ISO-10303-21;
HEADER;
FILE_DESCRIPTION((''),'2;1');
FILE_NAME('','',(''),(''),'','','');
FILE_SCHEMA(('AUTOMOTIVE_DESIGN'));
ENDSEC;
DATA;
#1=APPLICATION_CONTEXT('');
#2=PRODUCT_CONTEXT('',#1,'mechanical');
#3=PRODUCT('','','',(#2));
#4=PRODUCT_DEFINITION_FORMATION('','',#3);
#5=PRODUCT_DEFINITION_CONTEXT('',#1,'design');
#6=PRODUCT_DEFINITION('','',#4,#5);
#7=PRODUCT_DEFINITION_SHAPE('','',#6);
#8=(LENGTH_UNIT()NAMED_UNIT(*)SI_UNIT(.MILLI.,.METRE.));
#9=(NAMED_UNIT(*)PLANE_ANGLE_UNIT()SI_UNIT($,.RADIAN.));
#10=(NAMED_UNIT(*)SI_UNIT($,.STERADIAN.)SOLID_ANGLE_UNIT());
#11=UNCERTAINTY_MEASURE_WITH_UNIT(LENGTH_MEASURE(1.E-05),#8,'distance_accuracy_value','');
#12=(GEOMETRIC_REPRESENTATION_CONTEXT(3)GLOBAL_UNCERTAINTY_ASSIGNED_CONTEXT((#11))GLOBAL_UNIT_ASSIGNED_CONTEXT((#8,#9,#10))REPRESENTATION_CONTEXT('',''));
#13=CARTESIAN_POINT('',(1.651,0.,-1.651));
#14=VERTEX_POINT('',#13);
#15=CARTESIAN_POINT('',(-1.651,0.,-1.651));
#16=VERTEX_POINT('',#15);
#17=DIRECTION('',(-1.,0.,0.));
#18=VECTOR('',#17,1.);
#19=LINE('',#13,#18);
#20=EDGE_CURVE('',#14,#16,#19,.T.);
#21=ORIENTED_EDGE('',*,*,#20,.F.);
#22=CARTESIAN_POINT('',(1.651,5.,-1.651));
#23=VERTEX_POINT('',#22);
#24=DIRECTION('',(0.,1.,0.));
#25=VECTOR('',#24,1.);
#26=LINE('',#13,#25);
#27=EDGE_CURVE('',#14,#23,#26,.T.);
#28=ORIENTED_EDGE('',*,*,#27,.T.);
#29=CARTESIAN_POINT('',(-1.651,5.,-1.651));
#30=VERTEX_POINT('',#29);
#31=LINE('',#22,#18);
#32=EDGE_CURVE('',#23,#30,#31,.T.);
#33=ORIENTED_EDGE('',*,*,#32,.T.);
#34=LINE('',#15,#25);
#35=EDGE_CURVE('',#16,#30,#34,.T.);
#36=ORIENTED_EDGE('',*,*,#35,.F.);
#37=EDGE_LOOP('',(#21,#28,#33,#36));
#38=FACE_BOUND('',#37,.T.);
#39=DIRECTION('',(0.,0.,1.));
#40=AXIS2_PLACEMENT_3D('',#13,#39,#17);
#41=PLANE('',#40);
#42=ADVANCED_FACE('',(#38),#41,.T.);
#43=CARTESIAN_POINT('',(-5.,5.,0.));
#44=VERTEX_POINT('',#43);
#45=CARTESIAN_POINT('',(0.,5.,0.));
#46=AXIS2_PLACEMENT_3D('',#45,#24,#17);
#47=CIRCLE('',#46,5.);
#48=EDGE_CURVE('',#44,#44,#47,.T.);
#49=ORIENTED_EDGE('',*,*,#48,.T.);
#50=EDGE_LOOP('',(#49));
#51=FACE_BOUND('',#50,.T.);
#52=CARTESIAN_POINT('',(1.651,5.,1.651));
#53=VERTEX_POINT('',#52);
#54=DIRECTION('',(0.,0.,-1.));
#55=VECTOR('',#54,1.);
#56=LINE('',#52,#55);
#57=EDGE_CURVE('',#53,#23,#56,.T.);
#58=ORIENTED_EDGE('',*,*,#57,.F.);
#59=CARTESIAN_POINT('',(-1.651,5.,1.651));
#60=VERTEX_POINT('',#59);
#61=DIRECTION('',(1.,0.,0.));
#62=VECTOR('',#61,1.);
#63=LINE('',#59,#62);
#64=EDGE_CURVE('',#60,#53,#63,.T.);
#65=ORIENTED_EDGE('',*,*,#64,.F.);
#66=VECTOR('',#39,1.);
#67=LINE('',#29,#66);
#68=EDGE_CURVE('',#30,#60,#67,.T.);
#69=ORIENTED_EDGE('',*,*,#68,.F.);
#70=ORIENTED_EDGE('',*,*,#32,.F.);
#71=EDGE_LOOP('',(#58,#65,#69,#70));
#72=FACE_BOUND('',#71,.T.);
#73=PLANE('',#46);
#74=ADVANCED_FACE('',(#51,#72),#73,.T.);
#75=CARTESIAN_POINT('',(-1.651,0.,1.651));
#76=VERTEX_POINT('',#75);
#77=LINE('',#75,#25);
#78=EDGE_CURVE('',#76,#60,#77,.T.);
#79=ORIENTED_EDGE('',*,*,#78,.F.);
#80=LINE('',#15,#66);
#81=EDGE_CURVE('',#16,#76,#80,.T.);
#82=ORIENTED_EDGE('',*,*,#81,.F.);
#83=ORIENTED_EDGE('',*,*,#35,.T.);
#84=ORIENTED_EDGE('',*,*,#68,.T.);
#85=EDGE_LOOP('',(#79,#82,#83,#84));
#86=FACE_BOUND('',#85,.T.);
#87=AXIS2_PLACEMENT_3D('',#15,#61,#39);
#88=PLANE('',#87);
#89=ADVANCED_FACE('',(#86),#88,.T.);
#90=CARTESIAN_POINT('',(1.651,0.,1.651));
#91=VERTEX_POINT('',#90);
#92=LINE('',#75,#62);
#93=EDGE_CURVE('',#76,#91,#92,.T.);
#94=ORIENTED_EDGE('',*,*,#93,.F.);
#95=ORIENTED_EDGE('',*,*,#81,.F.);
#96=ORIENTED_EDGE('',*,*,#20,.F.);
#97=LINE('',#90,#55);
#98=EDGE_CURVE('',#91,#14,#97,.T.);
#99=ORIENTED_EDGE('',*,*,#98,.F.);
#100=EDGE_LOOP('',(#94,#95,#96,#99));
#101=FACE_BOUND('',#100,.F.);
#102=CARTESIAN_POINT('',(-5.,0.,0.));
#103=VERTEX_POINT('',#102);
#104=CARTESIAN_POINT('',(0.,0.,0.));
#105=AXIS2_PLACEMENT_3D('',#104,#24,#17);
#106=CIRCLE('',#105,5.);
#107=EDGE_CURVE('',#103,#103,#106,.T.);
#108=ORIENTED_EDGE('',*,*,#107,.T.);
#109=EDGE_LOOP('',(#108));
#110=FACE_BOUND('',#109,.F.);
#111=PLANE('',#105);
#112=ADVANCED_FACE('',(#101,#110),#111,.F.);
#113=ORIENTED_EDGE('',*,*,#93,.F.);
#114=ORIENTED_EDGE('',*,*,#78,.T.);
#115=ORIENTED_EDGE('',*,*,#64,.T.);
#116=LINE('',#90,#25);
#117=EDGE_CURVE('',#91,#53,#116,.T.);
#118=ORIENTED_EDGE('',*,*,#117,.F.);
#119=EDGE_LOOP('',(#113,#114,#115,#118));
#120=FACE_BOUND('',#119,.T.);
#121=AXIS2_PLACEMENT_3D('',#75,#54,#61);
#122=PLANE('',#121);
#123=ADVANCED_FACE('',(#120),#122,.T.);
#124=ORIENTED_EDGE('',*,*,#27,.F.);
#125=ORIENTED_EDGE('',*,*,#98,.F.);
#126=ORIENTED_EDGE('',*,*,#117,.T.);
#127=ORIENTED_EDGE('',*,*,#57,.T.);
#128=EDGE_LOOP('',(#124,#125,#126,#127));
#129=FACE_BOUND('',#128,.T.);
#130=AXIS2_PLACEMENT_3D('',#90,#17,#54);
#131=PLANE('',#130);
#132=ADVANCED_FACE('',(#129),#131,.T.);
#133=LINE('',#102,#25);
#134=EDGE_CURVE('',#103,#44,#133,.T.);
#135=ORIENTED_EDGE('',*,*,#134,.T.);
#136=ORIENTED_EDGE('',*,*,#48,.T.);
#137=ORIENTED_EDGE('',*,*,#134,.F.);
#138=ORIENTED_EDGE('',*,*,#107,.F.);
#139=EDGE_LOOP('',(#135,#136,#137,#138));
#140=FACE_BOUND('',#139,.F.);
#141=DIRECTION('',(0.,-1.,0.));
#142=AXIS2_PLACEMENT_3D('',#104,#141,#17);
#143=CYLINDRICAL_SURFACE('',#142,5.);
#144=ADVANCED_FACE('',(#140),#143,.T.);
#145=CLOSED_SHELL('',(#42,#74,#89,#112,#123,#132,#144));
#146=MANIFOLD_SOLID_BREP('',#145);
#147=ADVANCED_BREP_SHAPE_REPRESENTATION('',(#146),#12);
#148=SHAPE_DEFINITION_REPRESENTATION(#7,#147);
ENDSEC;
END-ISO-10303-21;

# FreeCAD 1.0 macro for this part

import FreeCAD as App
import Part
import Sketcher


def add_polygon(sketch, points):
    """Adds a closed chain of lines whose ends are joined by coincident constraints."""
    first, n = sketch.GeometryCount, len(points)
    for a, b in zip(points, points[1:] + points[:1]):
        sketch.addGeometry(Part.LineSegment(App.Vector(*a, 0), App.Vector(*b, 0)), False)
    for i in range(n):
        sketch.addConstraint(Sketcher.Constraint("Coincident", first + i, 2, first + (i + 1) % n, 1))

doc = App.newDocument("Part")
body = doc.addObject("PartDesign::Body", "Body")

# Sketch on XZ plane
sketch1 = doc.addObject("Sketcher::SketchObject", "Sketch")
body.addObject(sketch1)
sketch1.AttachmentSupport = (doc.XZ_Plane, [""])
sketch1.MapMode = "FlatFace"
sketch1.addGeometry(Part.Circle(App.Vector(0, 0, 0), App.Vector(0, 0, 1), 5), False)  # 0
add_polygon(sketch1, [(1.651, 1.651), (-1.651, 1.651), (-1.651, -1.651), (1.651, -1.651)])  # lines 1-4
sketch1.addConstraint([
    Sketcher.Constraint("Horizontal", 1),
    Sketcher.Constraint("Vertical", 2),
    Sketcher.Constraint("Horizontal", 3),
    Sketcher.Constraint("Vertical", 4),
    Sketcher.Constraint("Coincident", 0, 3, -1, 1),
    Sketcher.Constraint("Symmetric", 1, 2, 3, 2, -1, 1),
    Sketcher.Constraint("Equal", 3, 2),
    Sketcher.Constraint("Diameter", 0, 10.0),
    Sketcher.Constraint("DistanceX", 1, 2, 1, 1, 3.302),
])
pad1 = doc.addObject("PartDesign::Pad", "Pad")
body.addObject(pad1)
pad1.Profile = sketch1
pad1.Length = 5
pad1.Reversed = True

doc.recompute()
